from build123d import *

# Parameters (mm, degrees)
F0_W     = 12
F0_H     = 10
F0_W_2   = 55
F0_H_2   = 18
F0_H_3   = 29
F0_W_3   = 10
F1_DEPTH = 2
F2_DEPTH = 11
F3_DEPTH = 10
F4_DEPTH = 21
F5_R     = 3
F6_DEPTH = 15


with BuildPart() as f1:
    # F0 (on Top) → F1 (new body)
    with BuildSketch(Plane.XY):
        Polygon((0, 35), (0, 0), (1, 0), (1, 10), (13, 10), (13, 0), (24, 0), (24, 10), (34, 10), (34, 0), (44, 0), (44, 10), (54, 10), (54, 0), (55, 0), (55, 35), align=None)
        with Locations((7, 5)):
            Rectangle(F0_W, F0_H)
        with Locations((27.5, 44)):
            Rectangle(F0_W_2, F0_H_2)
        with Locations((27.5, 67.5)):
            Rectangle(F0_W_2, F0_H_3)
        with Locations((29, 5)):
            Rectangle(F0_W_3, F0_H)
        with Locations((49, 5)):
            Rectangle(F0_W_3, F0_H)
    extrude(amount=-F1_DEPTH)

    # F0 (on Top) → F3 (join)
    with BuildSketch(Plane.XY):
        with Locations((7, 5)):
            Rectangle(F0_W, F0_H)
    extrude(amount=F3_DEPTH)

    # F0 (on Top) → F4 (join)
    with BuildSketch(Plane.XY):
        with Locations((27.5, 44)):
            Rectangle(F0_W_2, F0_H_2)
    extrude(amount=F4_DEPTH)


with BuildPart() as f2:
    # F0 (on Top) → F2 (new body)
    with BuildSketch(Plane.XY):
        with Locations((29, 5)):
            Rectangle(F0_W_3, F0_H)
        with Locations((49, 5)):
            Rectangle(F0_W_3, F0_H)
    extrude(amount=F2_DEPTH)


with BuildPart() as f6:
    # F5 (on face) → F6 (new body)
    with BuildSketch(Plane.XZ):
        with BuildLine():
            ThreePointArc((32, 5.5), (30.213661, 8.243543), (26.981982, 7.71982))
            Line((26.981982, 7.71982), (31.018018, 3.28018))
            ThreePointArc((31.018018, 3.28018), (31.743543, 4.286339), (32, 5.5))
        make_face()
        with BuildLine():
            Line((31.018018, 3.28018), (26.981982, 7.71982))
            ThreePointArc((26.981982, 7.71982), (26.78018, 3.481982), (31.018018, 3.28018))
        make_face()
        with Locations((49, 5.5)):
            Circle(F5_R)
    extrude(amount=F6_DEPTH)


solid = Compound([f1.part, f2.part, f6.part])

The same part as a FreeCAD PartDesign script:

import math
import FreeCAD as App
import Part
import Sketcher
from FreeCAD import Vector

doc = App.newDocument("Part")
params = doc.addObject("Spreadsheet::Sheet", "Params")
for row, (alias, value) in enumerate([
    ("sketch1_width", "55 mm"),
    ("sketch1_height", "82 mm"),
    ("pad1_length", "2 mm"),
    ("sketch2_width", "12 mm"),
    ("sketch2_height", "10 mm"),
    ("pad2_length", "10 mm"),
    ("sketch3_width", "55 mm"),
    ("sketch3_height", "18 mm"),
    ("pad3_length", "21 mm"),
    ("sketch4_width", "10 mm"),
    ("pad4_length", "11 mm"),
    ("sketch5_diameter", "6 mm"),
    ("pad5_length", "15 mm"),
], start=1):
    params.set(f"A{row}", alias)
    params.set(f"B{row}", "=" + value)
    params.setAlias(f"B{row}", alias)

body = doc.addObject("PartDesign::Body", "Body")

sketch1 = body.newObject("Sketcher::SketchObject", "Sketch")
sketch1.AttachmentSupport = (doc.getObject("XY_Plane"), [""])
sketch1.MapMode = "FlatFace"
sketch1.addGeometry([
    Part.LineSegment(Vector(0, 0, 0), Vector(55, 0, 0)),
    Part.LineSegment(Vector(55, 0, 0), Vector(55, 82, 0)),
    Part.LineSegment(Vector(55, 82, 0), Vector(0, 82, 0)),
    Part.LineSegment(Vector(0, 82, 0), Vector(0, 0, 0)),
], False)
sketch1.addConstraint([
    Sketcher.Constraint("Coincident", 0, 2, 1, 1),
    Sketcher.Constraint("Coincident", 1, 2, 2, 1),
    Sketcher.Constraint("Coincident", 2, 2, 3, 1),
    Sketcher.Constraint("Coincident", 3, 2, 0, 1),
    Sketcher.Constraint("Horizontal", 0),
    Sketcher.Constraint("Vertical", 1),
    Sketcher.Constraint("Horizontal", 2),
    Sketcher.Constraint("Vertical", 3),
    Sketcher.Constraint("Coincident", 3, 2, -1, 1),
    Sketcher.Constraint("DistanceX", 0, 1, 0, 2, 55.0),
    Sketcher.Constraint("DistanceY", 1, 1, 1, 2, 82.0),
])
sketch1.setExpression("Constraints[9]", "Params.sketch1_width")
sketch1.setExpression("Constraints[10]", "Params.sketch1_height")
pad1 = body.newObject("PartDesign::Pad", "Pad")
pad1.Profile = sketch1
pad1.setExpression("Length", "Params.pad1_length")
pad1.Reversed = True

sketch2 = body.newObject("Sketcher::SketchObject", "Sketch001")
sketch2.AttachmentSupport = (doc.getObject("XY_Plane"), [""])
sketch2.MapMode = "FlatFace"
sketch2.addGeometry([
    Part.LineSegment(Vector(1, 10, 0), Vector(1, 0, 0)),
    Part.LineSegment(Vector(1, 0, 0), Vector(13, 0, 0)),
    Part.LineSegment(Vector(13, 0, 0), Vector(13, 10, 0)),
    Part.LineSegment(Vector(13, 10, 0), Vector(1, 10, 0)),
], False)
sketch2.addConstraint([
    Sketcher.Constraint("Coincident", 0, 2, 1, 1),
    Sketcher.Constraint("Coincident", 1, 2, 2, 1),
    Sketcher.Constraint("Coincident", 2, 2, 3, 1),
    Sketcher.Constraint("Coincident", 3, 2, 0, 1),
    Sketcher.Constraint("Vertical", 0),
    Sketcher.Constraint("Horizontal", 1),
    Sketcher.Constraint("Vertical", 2),
    Sketcher.Constraint("Horizontal", 3),
    Sketcher.Constraint("PointOnObject", 0, 2, -1),
    Sketcher.Constraint("DistanceX", 1, 1, 1, 2, 12.0),
    Sketcher.Constraint("DistanceY", 0, 2, 0, 1, 10.0),
    Sketcher.Constraint("DistanceX", -1, 1, 0, 2, 1.0),
])
sketch2.setExpression("Constraints[9]", "Params.sketch2_width")
sketch2.setExpression("Constraints[10]", "Params.sketch2_height")
pad2 = body.newObject("PartDesign::Pad", "Pad001")
pad2.Profile = sketch2
pad2.setExpression("Length", "Params.pad2_length")

sketch3 = body.newObject("Sketcher::SketchObject", "Sketch002")
sketch3.AttachmentSupport = (doc.getObject("XY_Plane"), [""])
sketch3.MapMode = "FlatFace"
sketch3.addGeometry([
    Part.LineSegment(Vector(0, 53, 0), Vector(0, 35, 0)),
    Part.LineSegment(Vector(0, 35, 0), Vector(55, 35, 0)),
    Part.LineSegment(Vector(55, 35, 0), Vector(55, 53, 0)),
    Part.LineSegment(Vector(55, 53, 0), Vector(0, 53, 0)),
], False)
sketch3.addConstraint([
    Sketcher.Constraint("Coincident", 0, 2, 1, 1),
    Sketcher.Constraint("Coincident", 1, 2, 2, 1),
    Sketcher.Constraint("Coincident", 2, 2, 3, 1),
    Sketcher.Constraint("Coincident", 3, 2, 0, 1),
    Sketcher.Constraint("Vertical", 0),
    Sketcher.Constraint("Horizontal", 1),
    Sketcher.Constraint("Vertical", 2),
    Sketcher.Constraint("Horizontal", 3),
    Sketcher.Constraint("PointOnObject", 0, 2, -2),
    Sketcher.Constraint("DistanceX", 1, 1, 1, 2, 55.0),
    Sketcher.Constraint("DistanceY", 0, 2, 0, 1, 18.0),
    Sketcher.Constraint("DistanceY", -1, 1, 0, 2, 35.0),
])
sketch3.setExpression("Constraints[9]", "Params.sketch3_width")
sketch3.setExpression("Constraints[10]", "Params.sketch3_height")
pad3 = body.newObject("PartDesign::Pad", "Pad002")
pad3.Profile = sketch3
pad3.setExpression("Length", "Params.pad3_length")
body2 = doc.addObject("PartDesign::Body", "Body001")
body2.AllowCompound = True

sketch4 = body2.newObject("Sketcher::SketchObject", "Sketch003")
sketch4.AttachmentSupport = (doc.getObject("XY_Plane001"), [""])
sketch4.MapMode = "FlatFace"
sketch4.addGeometry([
    Part.LineSegment(Vector(24, 10, 0), Vector(24, 0, 0)),
    Part.LineSegment(Vector(24, 0, 0), Vector(34, 0, 0)),
    Part.LineSegment(Vector(34, 0, 0), Vector(34, 10, 0)),
    Part.LineSegment(Vector(34, 10, 0), Vector(24, 10, 0)),
    Part.LineSegment(Vector(44, 10, 0), Vector(44, 0, 0)),
    Part.LineSegment(Vector(44, 0, 0), Vector(54, 0, 0)),
    Part.LineSegment(Vector(54, 0, 0), Vector(54, 10, 0)),
    Part.LineSegment(Vector(54, 10, 0), Vector(44, 10, 0)),
], False)
sketch4.addConstraint([
    Sketcher.Constraint("Coincident", 0, 2, 1, 1),
    Sketcher.Constraint("Coincident", 1, 2, 2, 1),
    Sketcher.Constraint("Coincident", 2, 2, 3, 1),
    Sketcher.Constraint("Coincident", 3, 2, 0, 1),
    Sketcher.Constraint("Coincident", 4, 2, 5, 1),
    Sketcher.Constraint("Coincident", 5, 2, 6, 1),
    Sketcher.Constraint("Coincident", 6, 2, 7, 1),
    Sketcher.Constraint("Coincident", 7, 2, 4, 1),
    Sketcher.Constraint("Vertical", 0),
    Sketcher.Constraint("Horizontal", 1),
    Sketcher.Constraint("Vertical", 2),
    Sketcher.Constraint("Horizontal", 3),
    Sketcher.Constraint("Vertical", 4),
    Sketcher.Constraint("Horizontal", 5),
    Sketcher.Constraint("Vertical", 6),
    Sketcher.Constraint("Horizontal", 7),
    Sketcher.Constraint("PointOnObject", 0, 2, -1),
    Sketcher.Constraint("PointOnObject", 4, 2, -1),
    Sketcher.Constraint("Horizontal", 3, 2, 6, 2),
    Sketcher.Constraint("Equal", 3, 5),
    Sketcher.Constraint("Equal", 7, 0),
    Sketcher.Constraint("DistanceX", 1, 1, 1, 2, 10.0),
    Sketcher.Constraint("DistanceX", -1, 1, 0, 2, 24.0),
    Sketcher.Constraint("DistanceX", -1, 1, 4, 2, 44.0),
])
sketch4.setExpression("Constraints[21]", "Params.sketch4_width")
pad4 = body2.newObject("PartDesign::Pad", "Pad003")
pad4.Profile = sketch4
pad4.setExpression("Length", "Params.pad4_length")
body3 = doc.addObject("PartDesign::Body", "Body002")
body3.AllowCompound = True

sketch5 = body3.newObject("Sketcher::SketchObject", "Sketch004")
sketch5.AttachmentSupport = (doc.getObject("XZ_Plane002"), [""])
sketch5.MapMode = "FlatFace"
sketch5.addGeometry([
    Part.ArcOfCircle(Part.Circle(Vector(29, 5.5, 0), Vector(0, 0, 1), 3), math.radians(0), math.radians(132)),
    Part.ArcOfCircle(Part.Circle(Vector(29, 5.5, 0), Vector(0, 0, 1), 3), math.radians(132), math.radians(312)),
    Part.ArcOfCircle(Part.Circle(Vector(29, 5.5, 0), Vector(0, 0, 1), 3), math.radians(-48), math.radians(0)),
    Part.Circle(Vector(49, 5.5, 0), Vector(0, 0, 1), 3),
], False)
sketch5.addConstraint([
    Sketcher.Constraint("Tangent", 0, 2, 1, 1),
    Sketcher.Constraint("Tangent", 1, 2, 2, 1),
    Sketcher.Constraint("Tangent", 2, 2, 0, 1),
    Sketcher.Constraint("Equal", 1, 3),
    Sketcher.Constraint("Horizontal", 2, 3, 3, 3),
    Sketcher.Constraint("Horizontal", 3, 3, 2, 2),
    Sketcher.Constraint("Diameter", 3, 6.0),
    Sketcher.Constraint("DistanceX", -1, 1, 0, 3, 29.0),
    Sketcher.Constraint("DistanceX", -1, 1, 3, 3, 49.0),
    Sketcher.Constraint("DistanceY", -1, 1, 0, 3, 5.500001),
    Sketcher.Constraint("DistanceX", -1, 1, 0, 2, 26.981982),
    Sketcher.Constraint("DistanceY", -1, 1, 1, 2, 3.28018),
])
sketch5.setExpression("Constraints[6]", "Params.sketch5_diameter")
pad5 = body3.newObject("PartDesign::Pad", "Pad004")
pad5.Profile = sketch5
pad5.setExpression("Length", "Params.pad5_length")

doc.recompute()
